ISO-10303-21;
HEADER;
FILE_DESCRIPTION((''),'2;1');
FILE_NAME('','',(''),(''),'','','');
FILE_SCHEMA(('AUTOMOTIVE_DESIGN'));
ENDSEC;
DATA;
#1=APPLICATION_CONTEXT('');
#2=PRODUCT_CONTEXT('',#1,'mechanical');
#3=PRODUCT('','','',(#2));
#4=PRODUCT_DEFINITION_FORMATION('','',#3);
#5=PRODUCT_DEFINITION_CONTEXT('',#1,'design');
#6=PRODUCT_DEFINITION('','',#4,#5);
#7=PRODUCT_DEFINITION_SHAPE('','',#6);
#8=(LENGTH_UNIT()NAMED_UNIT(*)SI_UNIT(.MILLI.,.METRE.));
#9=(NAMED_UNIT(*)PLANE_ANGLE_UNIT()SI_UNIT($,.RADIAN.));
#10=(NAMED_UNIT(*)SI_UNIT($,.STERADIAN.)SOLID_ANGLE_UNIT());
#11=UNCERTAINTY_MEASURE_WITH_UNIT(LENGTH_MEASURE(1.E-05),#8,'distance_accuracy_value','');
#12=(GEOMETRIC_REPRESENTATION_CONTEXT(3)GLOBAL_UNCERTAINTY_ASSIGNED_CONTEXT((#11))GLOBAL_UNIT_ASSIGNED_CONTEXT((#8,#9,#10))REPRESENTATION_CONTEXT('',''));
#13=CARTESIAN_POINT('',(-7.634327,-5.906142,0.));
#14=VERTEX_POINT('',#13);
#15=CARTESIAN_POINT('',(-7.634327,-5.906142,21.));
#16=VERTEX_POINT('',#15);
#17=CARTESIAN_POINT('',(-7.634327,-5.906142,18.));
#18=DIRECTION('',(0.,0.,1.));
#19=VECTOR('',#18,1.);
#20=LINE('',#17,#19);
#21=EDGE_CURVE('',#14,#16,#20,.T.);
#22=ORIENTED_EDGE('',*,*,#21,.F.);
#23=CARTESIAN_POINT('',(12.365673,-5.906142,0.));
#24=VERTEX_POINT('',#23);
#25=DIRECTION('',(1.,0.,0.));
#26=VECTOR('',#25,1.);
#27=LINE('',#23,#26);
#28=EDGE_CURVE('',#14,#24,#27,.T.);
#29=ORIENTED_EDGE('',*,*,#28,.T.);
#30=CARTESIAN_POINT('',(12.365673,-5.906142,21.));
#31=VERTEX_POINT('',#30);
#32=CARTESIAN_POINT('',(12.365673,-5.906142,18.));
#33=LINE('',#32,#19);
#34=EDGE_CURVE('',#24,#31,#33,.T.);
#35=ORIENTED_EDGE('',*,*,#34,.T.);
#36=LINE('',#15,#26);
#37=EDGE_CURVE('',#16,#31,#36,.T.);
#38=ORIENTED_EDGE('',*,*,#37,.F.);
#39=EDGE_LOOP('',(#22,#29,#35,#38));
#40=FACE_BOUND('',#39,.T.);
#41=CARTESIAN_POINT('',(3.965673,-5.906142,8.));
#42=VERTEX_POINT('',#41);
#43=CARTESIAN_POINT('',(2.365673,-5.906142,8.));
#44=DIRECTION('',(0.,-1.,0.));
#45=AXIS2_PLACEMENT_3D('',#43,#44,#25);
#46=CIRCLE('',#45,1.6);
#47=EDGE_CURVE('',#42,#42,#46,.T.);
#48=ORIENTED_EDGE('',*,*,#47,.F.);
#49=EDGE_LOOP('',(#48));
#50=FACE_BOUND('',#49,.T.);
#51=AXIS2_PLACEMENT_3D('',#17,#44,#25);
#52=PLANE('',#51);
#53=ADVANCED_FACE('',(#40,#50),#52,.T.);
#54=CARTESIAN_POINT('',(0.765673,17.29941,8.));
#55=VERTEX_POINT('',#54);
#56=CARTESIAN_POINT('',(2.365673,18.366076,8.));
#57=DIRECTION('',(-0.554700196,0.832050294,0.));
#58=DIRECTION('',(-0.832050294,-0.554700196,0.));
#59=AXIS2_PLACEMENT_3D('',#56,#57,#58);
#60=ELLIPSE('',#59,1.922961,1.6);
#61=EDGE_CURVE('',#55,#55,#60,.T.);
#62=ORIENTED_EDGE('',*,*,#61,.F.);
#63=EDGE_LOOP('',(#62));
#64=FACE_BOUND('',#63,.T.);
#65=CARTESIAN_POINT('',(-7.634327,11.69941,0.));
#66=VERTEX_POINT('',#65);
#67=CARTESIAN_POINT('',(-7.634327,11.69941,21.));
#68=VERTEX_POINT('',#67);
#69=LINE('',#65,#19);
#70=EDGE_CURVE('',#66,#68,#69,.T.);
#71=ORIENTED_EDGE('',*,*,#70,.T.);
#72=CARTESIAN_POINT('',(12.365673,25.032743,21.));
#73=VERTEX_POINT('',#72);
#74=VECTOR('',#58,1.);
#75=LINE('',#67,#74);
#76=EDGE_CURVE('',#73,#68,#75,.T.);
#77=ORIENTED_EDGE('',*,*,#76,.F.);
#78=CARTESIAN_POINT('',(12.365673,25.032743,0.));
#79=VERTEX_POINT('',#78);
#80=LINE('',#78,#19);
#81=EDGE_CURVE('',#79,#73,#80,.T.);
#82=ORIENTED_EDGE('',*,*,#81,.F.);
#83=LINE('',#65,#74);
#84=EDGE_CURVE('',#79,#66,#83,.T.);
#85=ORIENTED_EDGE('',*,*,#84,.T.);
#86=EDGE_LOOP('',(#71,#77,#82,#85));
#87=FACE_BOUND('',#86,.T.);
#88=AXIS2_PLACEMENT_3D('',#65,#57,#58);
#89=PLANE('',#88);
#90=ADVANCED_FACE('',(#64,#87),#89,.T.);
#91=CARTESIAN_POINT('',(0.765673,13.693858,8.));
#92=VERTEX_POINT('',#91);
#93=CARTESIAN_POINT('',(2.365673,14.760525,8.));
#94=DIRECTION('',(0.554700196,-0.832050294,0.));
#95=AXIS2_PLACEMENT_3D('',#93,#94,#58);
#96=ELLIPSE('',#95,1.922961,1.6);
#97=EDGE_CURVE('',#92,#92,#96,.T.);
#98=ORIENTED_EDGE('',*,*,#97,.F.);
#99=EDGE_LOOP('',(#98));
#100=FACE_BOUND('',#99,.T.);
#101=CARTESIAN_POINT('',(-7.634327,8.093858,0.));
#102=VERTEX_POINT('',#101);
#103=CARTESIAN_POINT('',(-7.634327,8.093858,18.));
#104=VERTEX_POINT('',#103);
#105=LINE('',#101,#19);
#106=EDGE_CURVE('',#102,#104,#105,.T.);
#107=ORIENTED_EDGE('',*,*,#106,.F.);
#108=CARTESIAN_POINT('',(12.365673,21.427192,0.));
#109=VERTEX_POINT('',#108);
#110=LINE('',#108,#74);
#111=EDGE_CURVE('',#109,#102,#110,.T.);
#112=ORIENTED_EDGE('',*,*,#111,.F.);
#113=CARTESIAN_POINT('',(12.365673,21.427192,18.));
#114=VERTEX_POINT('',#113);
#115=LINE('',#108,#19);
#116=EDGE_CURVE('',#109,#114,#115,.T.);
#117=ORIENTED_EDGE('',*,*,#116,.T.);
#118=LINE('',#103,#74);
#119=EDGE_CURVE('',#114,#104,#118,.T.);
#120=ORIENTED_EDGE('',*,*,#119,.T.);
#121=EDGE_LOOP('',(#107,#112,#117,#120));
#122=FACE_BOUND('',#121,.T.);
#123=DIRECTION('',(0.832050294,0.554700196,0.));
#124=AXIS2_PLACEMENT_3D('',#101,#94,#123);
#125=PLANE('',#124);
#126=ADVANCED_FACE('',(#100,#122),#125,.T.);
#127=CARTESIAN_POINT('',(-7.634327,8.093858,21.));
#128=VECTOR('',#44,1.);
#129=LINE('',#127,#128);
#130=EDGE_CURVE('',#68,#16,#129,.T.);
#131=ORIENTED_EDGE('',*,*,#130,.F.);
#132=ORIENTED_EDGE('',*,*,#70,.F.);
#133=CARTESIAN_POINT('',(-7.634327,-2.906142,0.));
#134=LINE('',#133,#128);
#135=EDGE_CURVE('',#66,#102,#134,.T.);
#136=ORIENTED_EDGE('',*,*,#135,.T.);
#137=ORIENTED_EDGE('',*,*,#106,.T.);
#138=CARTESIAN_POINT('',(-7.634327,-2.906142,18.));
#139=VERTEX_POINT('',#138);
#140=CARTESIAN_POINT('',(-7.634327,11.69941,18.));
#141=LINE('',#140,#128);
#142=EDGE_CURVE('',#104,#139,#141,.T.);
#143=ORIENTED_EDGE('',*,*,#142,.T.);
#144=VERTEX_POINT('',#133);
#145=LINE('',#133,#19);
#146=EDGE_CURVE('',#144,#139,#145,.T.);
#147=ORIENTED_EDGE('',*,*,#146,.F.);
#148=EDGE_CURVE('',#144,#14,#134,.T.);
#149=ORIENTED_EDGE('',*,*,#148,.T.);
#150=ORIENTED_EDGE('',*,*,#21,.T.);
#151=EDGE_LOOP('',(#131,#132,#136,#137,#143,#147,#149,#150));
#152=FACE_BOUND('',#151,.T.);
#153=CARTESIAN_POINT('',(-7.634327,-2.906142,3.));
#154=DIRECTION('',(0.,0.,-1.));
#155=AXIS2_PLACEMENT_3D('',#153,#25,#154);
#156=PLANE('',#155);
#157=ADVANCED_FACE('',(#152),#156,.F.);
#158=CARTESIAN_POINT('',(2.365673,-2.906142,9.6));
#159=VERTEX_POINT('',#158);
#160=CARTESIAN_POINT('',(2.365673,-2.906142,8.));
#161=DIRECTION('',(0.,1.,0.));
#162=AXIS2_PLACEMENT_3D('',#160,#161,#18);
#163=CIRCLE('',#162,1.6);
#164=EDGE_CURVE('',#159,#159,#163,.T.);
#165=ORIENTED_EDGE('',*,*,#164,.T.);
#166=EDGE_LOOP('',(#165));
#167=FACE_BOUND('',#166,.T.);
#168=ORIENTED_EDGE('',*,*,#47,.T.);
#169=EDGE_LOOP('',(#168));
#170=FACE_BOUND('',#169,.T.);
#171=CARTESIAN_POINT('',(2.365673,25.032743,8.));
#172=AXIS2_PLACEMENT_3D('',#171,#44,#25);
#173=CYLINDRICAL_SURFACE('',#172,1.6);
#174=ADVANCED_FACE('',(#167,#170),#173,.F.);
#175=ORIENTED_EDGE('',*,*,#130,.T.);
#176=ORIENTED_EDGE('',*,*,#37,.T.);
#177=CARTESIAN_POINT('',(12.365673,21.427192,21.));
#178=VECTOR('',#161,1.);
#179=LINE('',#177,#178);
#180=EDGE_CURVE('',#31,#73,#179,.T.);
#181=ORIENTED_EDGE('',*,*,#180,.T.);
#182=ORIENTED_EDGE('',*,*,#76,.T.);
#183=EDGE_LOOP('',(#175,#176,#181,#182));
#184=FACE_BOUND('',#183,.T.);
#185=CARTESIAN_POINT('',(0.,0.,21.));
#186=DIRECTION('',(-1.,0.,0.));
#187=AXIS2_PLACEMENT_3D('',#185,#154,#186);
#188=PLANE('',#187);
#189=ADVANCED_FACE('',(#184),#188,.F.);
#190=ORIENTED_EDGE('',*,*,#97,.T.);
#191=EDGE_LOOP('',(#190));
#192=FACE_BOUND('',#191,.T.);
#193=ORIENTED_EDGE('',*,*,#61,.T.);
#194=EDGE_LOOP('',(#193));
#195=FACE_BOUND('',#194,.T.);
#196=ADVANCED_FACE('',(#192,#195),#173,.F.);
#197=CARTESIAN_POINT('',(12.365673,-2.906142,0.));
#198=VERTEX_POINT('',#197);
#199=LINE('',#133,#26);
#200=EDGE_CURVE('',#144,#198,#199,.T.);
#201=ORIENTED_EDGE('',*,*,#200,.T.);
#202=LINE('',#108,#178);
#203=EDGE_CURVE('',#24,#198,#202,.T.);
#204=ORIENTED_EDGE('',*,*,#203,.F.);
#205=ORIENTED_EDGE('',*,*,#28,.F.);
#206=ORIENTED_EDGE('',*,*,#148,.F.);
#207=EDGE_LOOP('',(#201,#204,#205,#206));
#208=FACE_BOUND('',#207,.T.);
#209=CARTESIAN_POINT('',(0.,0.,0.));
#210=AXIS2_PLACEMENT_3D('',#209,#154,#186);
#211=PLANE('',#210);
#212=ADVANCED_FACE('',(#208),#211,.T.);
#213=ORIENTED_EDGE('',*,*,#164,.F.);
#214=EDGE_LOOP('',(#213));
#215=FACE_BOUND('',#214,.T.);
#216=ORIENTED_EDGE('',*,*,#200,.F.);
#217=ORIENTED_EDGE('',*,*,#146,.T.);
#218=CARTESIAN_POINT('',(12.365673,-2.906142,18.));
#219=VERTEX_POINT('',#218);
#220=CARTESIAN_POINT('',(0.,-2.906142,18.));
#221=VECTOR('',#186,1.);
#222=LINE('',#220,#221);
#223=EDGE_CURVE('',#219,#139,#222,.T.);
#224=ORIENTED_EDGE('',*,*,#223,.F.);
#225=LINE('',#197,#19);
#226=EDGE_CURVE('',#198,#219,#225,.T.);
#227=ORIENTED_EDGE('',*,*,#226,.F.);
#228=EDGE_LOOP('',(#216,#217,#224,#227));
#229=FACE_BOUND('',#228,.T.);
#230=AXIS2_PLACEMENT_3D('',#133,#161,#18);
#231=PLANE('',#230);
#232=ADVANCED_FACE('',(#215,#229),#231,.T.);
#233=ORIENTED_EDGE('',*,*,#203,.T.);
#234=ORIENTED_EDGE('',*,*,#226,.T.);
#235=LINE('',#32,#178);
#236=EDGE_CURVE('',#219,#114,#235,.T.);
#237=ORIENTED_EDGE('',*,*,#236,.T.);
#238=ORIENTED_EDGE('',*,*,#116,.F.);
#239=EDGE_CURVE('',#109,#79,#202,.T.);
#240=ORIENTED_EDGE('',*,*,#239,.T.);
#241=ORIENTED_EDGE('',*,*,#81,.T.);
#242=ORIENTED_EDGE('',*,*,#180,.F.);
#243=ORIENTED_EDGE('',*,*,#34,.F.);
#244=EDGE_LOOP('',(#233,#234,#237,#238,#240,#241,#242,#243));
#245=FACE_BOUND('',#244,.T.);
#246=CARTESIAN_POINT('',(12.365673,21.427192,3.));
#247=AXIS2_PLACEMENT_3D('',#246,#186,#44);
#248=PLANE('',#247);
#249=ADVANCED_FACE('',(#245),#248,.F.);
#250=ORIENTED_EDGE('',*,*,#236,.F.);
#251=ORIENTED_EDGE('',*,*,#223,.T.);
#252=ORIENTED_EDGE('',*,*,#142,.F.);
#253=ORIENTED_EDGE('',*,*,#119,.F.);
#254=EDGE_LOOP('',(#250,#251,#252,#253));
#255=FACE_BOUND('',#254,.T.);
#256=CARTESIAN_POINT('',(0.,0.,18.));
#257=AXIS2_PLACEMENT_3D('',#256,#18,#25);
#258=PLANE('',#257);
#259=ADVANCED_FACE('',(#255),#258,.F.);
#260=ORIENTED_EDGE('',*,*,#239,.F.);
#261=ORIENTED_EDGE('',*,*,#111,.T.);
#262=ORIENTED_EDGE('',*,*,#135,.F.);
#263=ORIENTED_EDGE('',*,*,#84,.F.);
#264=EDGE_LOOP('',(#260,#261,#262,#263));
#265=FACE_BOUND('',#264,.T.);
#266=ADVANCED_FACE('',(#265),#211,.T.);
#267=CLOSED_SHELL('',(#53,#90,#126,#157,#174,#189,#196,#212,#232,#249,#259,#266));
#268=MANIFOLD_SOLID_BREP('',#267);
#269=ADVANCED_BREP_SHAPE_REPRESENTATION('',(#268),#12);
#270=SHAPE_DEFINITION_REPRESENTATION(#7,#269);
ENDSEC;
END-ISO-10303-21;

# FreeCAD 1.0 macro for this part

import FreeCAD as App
import Part
import Sketcher


def add_polygon(sketch, points):
    """Adds a closed chain of lines whose ends are joined by coincident constraints."""
    first, n = sketch.GeometryCount, len(points)
    for a, b in zip(points, points[1:] + points[:1]):
        sketch.addGeometry(Part.LineSegment(App.Vector(*a, 0), App.Vector(*b, 0)), False)
    for i in range(n):
        sketch.addConstraint(Sketcher.Constraint("Coincident", first + i, 2, first + (i + 1) % n, 1))

doc = App.newDocument("Part")
body = doc.addObject("PartDesign::Body", "Body")
body.AllowCompound = True

# Sketch on XY plane
sketch1 = body.newObject("Sketcher::SketchObject", "Sketch")
sketch1.AttachmentSupport = (doc.getObject("XY_Plane"), [""])
sketch1.MapMode = "FlatFace"
add_polygon(sketch1, [(-8, 8), (-8, -6), (12, -6), (12, 21)])  # lines 0-3
sketch1.addConstraint(Sketcher.Constraint("Vertical", 0))
sketch1.addConstraint(Sketcher.Constraint("Horizontal", 1))
sketch1.addConstraint(Sketcher.Constraint("Vertical", 2))
sketch1.addConstraint(Sketcher.Constraint("DistanceX", 1, 1, 1, 2, 20.0))
sketch1.addConstraint(Sketcher.Constraint("DistanceY", 0, 2, 0, 1, 14.0))
sketch1.addConstraint(Sketcher.Constraint("Distance", 3, 24.037009))
sketch1.addConstraint(Sketcher.Constraint("DistanceY", 0, 2, -1, 1, 5.906142))
sketch1.addConstraint(Sketcher.Constraint("DistanceX", 0, 2, -1, 1, 7.634327))
pad1 = body.newObject("PartDesign::Pad", "Pad")
pad1.Profile = sketch1
pad1.Length = 3

# Sketch on XY plane
sketch2 = body.newObject("Sketcher::SketchObject", "Sketch001")
sketch2.AttachmentSupport = (doc.getObject("XY_Plane"), [""])
sketch2.MapMode = "FlatFace"
sketch2.AttachmentOffset = App.Placement(App.Vector(0, 0, 3), App.Rotation())
add_polygon(sketch2, [(-7.6, 8.1), (12.4, 21.4), (12.4, 25), (-7.6, 11.7)])  # lines 0-3
add_polygon(sketch2, [(-7.6, -2.9), (-7.6, -5.9), (12.4, -5.9), (12.4, -2.9)])  # lines 4-7
sketch2.addConstraint(Sketcher.Constraint("Vertical", 1))
sketch2.addConstraint(Sketcher.Constraint("Vertical", 3))
sketch2.addConstraint(Sketcher.Constraint("Vertical", 4))
sketch2.addConstraint(Sketcher.Constraint("Horizontal", 5))
sketch2.addConstraint(Sketcher.Constraint("Vertical", 6))
sketch2.addConstraint(Sketcher.Constraint("Horizontal", 7))
sketch2.addConstraint(Sketcher.Constraint("Parallel", 0, 2))
sketch2.addConstraint(Sketcher.Constraint("Vertical", 3, 2, 4, 2))
sketch2.addConstraint(Sketcher.Constraint("Vertical", 1, 2, 5, 2))
sketch2.addConstraint(Sketcher.Constraint("DistanceX", 5, 1, 5, 2, 20.0))
sketch2.addConstraint(Sketcher.Constraint("DistanceY", 4, 2, 4, 1, 3.0))
sketch2.addConstraint(Sketcher.Constraint("DistanceY", 4, 2, 3, 2, 14.0))
sketch2.addConstraint(Sketcher.Constraint("DistanceY", 1, 1, 1, 2, 3.605551))
sketch2.addConstraint(Sketcher.Constraint("Distance", 0, 24.037009))
sketch2.addConstraint(Sketcher.Constraint("DistanceY", -1, 1, 0, 2, 21.427192))
sketch2.addConstraint(Sketcher.Constraint("DistanceX", -1, 1, 0, 2, 12.365673))
pad2 = body.newObject("PartDesign::Pad", "Pad001")
pad2.Profile = sketch2
pad2.Type = "TwoLengths"
pad2.Length = 18
pad2.Length2 = 3

# Sketch on XZ plane
sketch3 = body.newObject("Sketcher::SketchObject", "Sketch002")
sketch3.AttachmentSupport = (doc.getObject("XZ_Plane"), [""])
sketch3.MapMode = "FlatFace"
sketch3.AttachmentOffset = App.Placement(App.Vector(0, 0, 5.906142), App.Rotation())
sketch3.addGeometry(Part.Circle(App.Vector(2.4, 8, 0), App.Vector(0, 0, 1), 1.6), False)
sketch3.addConstraint(Sketcher.Constraint("Diameter", 0, 3.2))
sketch3.addConstraint(Sketcher.Constraint("DistanceY", -1, 1, 0, 3, 8.0))
sketch3.addConstraint(Sketcher.Constraint("DistanceX", -1, 1, 0, 3, 2.365673))
pocket1 = body.newObject("PartDesign::Pocket", "Pocket")
pocket1.Profile = sketch3
pocket1.Type = "ThroughAll"

# Sketch on XY plane
sketch4 = body.newObject("Sketcher::SketchObject", "Sketch003")
sketch4.AttachmentSupport = (doc.getObject("XY_Plane"), [""])
sketch4.MapMode = "FlatFace"
sketch4.AttachmentOffset = App.Placement(App.Vector(0, 0, 3), App.Rotation())
add_polygon(sketch4, [(-8, 8), (-8, -3), (12, -3), (12, 21)])  # lines 0-3
sketch4.addConstraint(Sketcher.Constraint("Vertical", 0))
sketch4.addConstraint(Sketcher.Constraint("Horizontal", 1))
sketch4.addConstraint(Sketcher.Constraint("Vertical", 2))
sketch4.addConstraint(Sketcher.Constraint("DistanceX", 1, 1, 1, 2, 20.0))
sketch4.addConstraint(Sketcher.Constraint("DistanceY", 0, 2, 0, 1, 11.0))
sketch4.addConstraint(Sketcher.Constraint("Distance", 3, 24.037009))
sketch4.addConstraint(Sketcher.Constraint("DistanceY", 0, 2, -1, 1, 2.906142))
sketch4.addConstraint(Sketcher.Constraint("DistanceX", 0, 2, -1, 1, 7.634327))
pocket2 = body.newObject("PartDesign::Pocket", "Pocket001")
pocket2.Profile = sketch4
pocket2.Type = "ThroughAll"

# Sketch on XY plane
sketch5 = body.newObject("Sketcher::SketchObject", "Sketch004")
sketch5.AttachmentSupport = (doc.getObject("XY_Plane"), [""])
sketch5.MapMode = "FlatFace"
sketch5.AttachmentOffset = App.Placement(App.Vector(0, 0, 21), App.Rotation())
add_polygon(sketch5, [(-8, 12), (-8, -6), (12, -6), (12, 25)])  # lines 0-3
sketch5.addConstraint(Sketcher.Constraint("Vertical", 0))
sketch5.addConstraint(Sketcher.Constraint("Horizontal", 1))
sketch5.addConstraint(Sketcher.Constraint("Vertical", 2))
sketch5.addConstraint(Sketcher.Constraint("DistanceX", 1, 1, 1, 2, 20.0))
sketch5.addConstraint(Sketcher.Constraint("DistanceY", 0, 2, 0, 1, 17.605551))
sketch5.addConstraint(Sketcher.Constraint("Distance", 3, 24.037009))
sketch5.addConstraint(Sketcher.Constraint("DistanceY", 0, 2, -1, 1, 5.906142))
sketch5.addConstraint(Sketcher.Constraint("DistanceX", 0, 2, -1, 1, 7.634327))
pad3 = body.newObject("PartDesign::Pad", "Pad002")
pad3.Profile = sketch5
pad3.Length = 3
pad3.Reversed = True

doc.recompute()
